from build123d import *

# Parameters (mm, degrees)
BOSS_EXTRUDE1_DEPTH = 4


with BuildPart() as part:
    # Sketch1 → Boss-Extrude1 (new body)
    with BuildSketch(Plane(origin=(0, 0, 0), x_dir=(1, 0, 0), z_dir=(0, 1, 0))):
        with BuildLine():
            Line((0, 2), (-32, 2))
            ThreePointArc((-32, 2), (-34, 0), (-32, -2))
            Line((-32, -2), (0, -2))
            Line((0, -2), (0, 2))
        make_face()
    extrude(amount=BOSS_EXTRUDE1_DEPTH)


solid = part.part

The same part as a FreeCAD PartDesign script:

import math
import FreeCAD as App
import Part
import Sketcher
from FreeCAD import Vector

doc = App.newDocument("Part")
body = doc.addObject("PartDesign::Body", "Body")

# Sketch on XZ plane
sketch1 = body.newObject("Sketcher::SketchObject", "Sketch")
sketch1.AttachmentSupport = (doc.getObject("XZ_Plane"), [""])
sketch1.MapMode = "FlatFace"
sketch1.addGeometry(Part.LineSegment(Vector(0, -2, 0), Vector(-32, -2, 0)), False)
sketch1.addGeometry(Part.ArcOfCircle(Part.Circle(Vector(-32, 0, 0), Vector(0, 0, 1), 2), math.radians(90), math.radians(270)), False)
sketch1.addGeometry(Part.LineSegment(Vector(-32, 2, 0), Vector(0, 2, 0)), False)
sketch1.addGeometry(Part.LineSegment(Vector(0, 2, 0), Vector(0, -2, 0)), False)
sketch1.addConstraint(Sketcher.Constraint("Tangent", 0, 2, 1, 2))
sketch1.addConstraint(Sketcher.Constraint("Tangent", 1, 1, 2, 1))
sketch1.addConstraint(Sketcher.Constraint("Coincident", 2, 2, 3, 1))
sketch1.addConstraint(Sketcher.Constraint("Coincident", 3, 2, 0, 1))
sketch1.addConstraint(Sketcher.Constraint("Horizontal", 0))
sketch1.addConstraint(Sketcher.Constraint("Horizontal", 2))
sketch1.addConstraint(Sketcher.Constraint("Vertical", 3))
sketch1.addConstraint(Sketcher.Constraint("Symmetric", 2, 2, 3, 2, -1, 1))
sketch1.addConstraint(Sketcher.Constraint("Radius", 1, 2.0))
sketch1.addConstraint(Sketcher.Constraint("DistanceX", 0, 2, 0, 1, 32.0))
pad1 = body.newObject("PartDesign::Pad", "Pad")
pad1.Profile = sketch1
pad1.Length = 4
pad1.Reversed = True

doc.recompute()
